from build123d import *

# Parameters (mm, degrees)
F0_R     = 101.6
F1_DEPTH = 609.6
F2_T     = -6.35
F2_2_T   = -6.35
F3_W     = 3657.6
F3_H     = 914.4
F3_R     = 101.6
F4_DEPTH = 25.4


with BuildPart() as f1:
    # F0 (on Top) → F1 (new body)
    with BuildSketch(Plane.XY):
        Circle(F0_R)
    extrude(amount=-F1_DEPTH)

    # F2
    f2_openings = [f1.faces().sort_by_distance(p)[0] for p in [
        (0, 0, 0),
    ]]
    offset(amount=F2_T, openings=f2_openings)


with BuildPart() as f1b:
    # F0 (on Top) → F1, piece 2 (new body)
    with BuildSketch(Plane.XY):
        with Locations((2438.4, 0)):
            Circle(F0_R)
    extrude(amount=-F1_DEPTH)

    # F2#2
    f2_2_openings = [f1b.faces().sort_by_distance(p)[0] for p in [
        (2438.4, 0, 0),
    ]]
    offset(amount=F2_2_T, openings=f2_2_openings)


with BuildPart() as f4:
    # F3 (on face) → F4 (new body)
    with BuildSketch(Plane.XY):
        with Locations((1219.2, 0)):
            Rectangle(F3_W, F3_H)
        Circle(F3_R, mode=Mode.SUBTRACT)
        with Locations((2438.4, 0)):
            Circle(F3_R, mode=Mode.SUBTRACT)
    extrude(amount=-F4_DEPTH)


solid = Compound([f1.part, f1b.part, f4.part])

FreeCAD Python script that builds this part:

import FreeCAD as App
import Part
import Sketcher
from FreeCAD import Vector
Q = App.Units.Quantity


def faces_at(feature, points):
    """Names of the faces that lie closest to the given points."""
    faces = feature.Shape.Faces
    near = lambda p: min(range(len(faces)), key=lambda i: faces[i].distToShape(Part.Vertex(*p))[0])
    return sorted({f"Face{near(p) + 1}" for p in points})

doc = App.newDocument("Part")
body = doc.addObject("PartDesign::Body", "Body")

# Sketch on XY plane
sketch1 = body.newObject("Sketcher::SketchObject", "Sketch")
sketch1.AttachmentSupport = (doc.getObject("XY_Plane"), [""])
sketch1.MapMode = "FlatFace"
sketch1.addGeometry(Part.Circle(Vector(0, 0, 0), Vector(0, 0, 1), 102), False)
sketch1.addConstraint([
    Sketcher.Constraint("Coincident", 0, 3, -1, 1),
    Sketcher.Constraint("Diameter", 0, Q("8 in")),
])
pad1 = body.newObject("PartDesign::Pad", "Pad")
pad1.Profile = sketch1
pad1.Length = Q("24 in")
pad1.Reversed = True
doc.recompute()

thickness = body.newObject("PartDesign::Thickness", "Thickness")
thickness.Base = (pad1, faces_at(pad1, [(0, 0, 0)]))
thickness.Value = Q("0.25 in")
thickness.Reversed = True
thickness.Join = "Arc"
body2 = doc.addObject("PartDesign::Body", "Body001")

# Sketch on XY plane
sketch2 = body2.newObject("Sketcher::SketchObject", "Sketch001")
sketch2.AttachmentSupport = (doc.getObject("XY_Plane001"), [""])
sketch2.MapMode = "FlatFace"
sketch2.addGeometry(Part.Circle(Vector(2438, 0, 0), Vector(0, 0, 1), 102), False)
sketch2.addConstraint([
    Sketcher.Constraint("PointOnObject", 0, 3, -1),
    Sketcher.Constraint("Diameter", 0, Q("8 in")),
    Sketcher.Constraint("DistanceX", -1, 1, 0, 3, Q("96 in")),
])
pad2 = body2.newObject("PartDesign::Pad", "Pad001")
pad2.Profile = sketch2
pad2.Length = Q("24 in")
pad2.Reversed = True
doc.recompute()

thickness2 = body2.newObject("PartDesign::Thickness", "Thickness001")
thickness2.Base = (pad2, faces_at(pad2, [(2438.4, 0, 0)]))
thickness2.Value = Q("0.25 in")
thickness2.Reversed = True
thickness2.Join = "Arc"
body3 = doc.addObject("PartDesign::Body", "Body002")

# Sketch on XY plane
sketch3 = body3.newObject("Sketcher::SketchObject", "Sketch002")
sketch3.AttachmentSupport = (doc.getObject("XY_Plane002"), [""])
sketch3.MapMode = "FlatFace"
sketch3.addGeometry([
    Part.LineSegment(Vector(-610, 457, 0), Vector(-610, -457, 0)),  # 0
    Part.LineSegment(Vector(-610, -457, 0), Vector(3048, -457, 0)),  # 1
    Part.LineSegment(Vector(3048, -457, 0), Vector(3048, 457, 0)),  # 2
    Part.LineSegment(Vector(3048, 457, 0), Vector(-610, 457, 0)),  # 3
    Part.Circle(Vector(0, 0, 0), Vector(0, 0, 1), 102),  # 4
    Part.Circle(Vector(2438, 0, 0), Vector(0, 0, 1), 102),  # 5
], False)
sketch3.addConstraint([
    Sketcher.Constraint("Coincident", 0, 2, 1, 1),
    Sketcher.Constraint("Coincident", 1, 2, 2, 1),
    Sketcher.Constraint("Coincident", 2, 2, 3, 1),
    Sketcher.Constraint("Coincident", 3, 2, 0, 1),
    Sketcher.Constraint("Vertical", 0),
    Sketcher.Constraint("Horizontal", 1),
    Sketcher.Constraint("Vertical", 2),
    Sketcher.Constraint("Horizontal", 3),
    Sketcher.Constraint("Coincident", 4, 3, -1, 1),
    Sketcher.Constraint("Equal", 4, 5),
    Sketcher.Constraint("PointOnObject", 5, 3, -1),
    Sketcher.Constraint("Diameter", 4, Q("8 in")),
    Sketcher.Constraint("DistanceX", 1, 1, 1, 2, Q("144 in")),
    Sketcher.Constraint("DistanceY", 0, 2, 0, 1, Q("36 in")),
    Sketcher.Constraint("DistanceX", -1, 1, 5, 3, Q("96 in")),
    Sketcher.Constraint("DistanceX", 0, 2, -1, 1, Q("24 in")),
    Sketcher.Constraint("DistanceY", 0, 2, -1, 1, Q("18 in")),
])
pad3 = body3.newObject("PartDesign::Pad", "Pad002")
pad3.Profile = sketch3
pad3.Length = Q("1 in")
pad3.Reversed = True

doc.recompute()
